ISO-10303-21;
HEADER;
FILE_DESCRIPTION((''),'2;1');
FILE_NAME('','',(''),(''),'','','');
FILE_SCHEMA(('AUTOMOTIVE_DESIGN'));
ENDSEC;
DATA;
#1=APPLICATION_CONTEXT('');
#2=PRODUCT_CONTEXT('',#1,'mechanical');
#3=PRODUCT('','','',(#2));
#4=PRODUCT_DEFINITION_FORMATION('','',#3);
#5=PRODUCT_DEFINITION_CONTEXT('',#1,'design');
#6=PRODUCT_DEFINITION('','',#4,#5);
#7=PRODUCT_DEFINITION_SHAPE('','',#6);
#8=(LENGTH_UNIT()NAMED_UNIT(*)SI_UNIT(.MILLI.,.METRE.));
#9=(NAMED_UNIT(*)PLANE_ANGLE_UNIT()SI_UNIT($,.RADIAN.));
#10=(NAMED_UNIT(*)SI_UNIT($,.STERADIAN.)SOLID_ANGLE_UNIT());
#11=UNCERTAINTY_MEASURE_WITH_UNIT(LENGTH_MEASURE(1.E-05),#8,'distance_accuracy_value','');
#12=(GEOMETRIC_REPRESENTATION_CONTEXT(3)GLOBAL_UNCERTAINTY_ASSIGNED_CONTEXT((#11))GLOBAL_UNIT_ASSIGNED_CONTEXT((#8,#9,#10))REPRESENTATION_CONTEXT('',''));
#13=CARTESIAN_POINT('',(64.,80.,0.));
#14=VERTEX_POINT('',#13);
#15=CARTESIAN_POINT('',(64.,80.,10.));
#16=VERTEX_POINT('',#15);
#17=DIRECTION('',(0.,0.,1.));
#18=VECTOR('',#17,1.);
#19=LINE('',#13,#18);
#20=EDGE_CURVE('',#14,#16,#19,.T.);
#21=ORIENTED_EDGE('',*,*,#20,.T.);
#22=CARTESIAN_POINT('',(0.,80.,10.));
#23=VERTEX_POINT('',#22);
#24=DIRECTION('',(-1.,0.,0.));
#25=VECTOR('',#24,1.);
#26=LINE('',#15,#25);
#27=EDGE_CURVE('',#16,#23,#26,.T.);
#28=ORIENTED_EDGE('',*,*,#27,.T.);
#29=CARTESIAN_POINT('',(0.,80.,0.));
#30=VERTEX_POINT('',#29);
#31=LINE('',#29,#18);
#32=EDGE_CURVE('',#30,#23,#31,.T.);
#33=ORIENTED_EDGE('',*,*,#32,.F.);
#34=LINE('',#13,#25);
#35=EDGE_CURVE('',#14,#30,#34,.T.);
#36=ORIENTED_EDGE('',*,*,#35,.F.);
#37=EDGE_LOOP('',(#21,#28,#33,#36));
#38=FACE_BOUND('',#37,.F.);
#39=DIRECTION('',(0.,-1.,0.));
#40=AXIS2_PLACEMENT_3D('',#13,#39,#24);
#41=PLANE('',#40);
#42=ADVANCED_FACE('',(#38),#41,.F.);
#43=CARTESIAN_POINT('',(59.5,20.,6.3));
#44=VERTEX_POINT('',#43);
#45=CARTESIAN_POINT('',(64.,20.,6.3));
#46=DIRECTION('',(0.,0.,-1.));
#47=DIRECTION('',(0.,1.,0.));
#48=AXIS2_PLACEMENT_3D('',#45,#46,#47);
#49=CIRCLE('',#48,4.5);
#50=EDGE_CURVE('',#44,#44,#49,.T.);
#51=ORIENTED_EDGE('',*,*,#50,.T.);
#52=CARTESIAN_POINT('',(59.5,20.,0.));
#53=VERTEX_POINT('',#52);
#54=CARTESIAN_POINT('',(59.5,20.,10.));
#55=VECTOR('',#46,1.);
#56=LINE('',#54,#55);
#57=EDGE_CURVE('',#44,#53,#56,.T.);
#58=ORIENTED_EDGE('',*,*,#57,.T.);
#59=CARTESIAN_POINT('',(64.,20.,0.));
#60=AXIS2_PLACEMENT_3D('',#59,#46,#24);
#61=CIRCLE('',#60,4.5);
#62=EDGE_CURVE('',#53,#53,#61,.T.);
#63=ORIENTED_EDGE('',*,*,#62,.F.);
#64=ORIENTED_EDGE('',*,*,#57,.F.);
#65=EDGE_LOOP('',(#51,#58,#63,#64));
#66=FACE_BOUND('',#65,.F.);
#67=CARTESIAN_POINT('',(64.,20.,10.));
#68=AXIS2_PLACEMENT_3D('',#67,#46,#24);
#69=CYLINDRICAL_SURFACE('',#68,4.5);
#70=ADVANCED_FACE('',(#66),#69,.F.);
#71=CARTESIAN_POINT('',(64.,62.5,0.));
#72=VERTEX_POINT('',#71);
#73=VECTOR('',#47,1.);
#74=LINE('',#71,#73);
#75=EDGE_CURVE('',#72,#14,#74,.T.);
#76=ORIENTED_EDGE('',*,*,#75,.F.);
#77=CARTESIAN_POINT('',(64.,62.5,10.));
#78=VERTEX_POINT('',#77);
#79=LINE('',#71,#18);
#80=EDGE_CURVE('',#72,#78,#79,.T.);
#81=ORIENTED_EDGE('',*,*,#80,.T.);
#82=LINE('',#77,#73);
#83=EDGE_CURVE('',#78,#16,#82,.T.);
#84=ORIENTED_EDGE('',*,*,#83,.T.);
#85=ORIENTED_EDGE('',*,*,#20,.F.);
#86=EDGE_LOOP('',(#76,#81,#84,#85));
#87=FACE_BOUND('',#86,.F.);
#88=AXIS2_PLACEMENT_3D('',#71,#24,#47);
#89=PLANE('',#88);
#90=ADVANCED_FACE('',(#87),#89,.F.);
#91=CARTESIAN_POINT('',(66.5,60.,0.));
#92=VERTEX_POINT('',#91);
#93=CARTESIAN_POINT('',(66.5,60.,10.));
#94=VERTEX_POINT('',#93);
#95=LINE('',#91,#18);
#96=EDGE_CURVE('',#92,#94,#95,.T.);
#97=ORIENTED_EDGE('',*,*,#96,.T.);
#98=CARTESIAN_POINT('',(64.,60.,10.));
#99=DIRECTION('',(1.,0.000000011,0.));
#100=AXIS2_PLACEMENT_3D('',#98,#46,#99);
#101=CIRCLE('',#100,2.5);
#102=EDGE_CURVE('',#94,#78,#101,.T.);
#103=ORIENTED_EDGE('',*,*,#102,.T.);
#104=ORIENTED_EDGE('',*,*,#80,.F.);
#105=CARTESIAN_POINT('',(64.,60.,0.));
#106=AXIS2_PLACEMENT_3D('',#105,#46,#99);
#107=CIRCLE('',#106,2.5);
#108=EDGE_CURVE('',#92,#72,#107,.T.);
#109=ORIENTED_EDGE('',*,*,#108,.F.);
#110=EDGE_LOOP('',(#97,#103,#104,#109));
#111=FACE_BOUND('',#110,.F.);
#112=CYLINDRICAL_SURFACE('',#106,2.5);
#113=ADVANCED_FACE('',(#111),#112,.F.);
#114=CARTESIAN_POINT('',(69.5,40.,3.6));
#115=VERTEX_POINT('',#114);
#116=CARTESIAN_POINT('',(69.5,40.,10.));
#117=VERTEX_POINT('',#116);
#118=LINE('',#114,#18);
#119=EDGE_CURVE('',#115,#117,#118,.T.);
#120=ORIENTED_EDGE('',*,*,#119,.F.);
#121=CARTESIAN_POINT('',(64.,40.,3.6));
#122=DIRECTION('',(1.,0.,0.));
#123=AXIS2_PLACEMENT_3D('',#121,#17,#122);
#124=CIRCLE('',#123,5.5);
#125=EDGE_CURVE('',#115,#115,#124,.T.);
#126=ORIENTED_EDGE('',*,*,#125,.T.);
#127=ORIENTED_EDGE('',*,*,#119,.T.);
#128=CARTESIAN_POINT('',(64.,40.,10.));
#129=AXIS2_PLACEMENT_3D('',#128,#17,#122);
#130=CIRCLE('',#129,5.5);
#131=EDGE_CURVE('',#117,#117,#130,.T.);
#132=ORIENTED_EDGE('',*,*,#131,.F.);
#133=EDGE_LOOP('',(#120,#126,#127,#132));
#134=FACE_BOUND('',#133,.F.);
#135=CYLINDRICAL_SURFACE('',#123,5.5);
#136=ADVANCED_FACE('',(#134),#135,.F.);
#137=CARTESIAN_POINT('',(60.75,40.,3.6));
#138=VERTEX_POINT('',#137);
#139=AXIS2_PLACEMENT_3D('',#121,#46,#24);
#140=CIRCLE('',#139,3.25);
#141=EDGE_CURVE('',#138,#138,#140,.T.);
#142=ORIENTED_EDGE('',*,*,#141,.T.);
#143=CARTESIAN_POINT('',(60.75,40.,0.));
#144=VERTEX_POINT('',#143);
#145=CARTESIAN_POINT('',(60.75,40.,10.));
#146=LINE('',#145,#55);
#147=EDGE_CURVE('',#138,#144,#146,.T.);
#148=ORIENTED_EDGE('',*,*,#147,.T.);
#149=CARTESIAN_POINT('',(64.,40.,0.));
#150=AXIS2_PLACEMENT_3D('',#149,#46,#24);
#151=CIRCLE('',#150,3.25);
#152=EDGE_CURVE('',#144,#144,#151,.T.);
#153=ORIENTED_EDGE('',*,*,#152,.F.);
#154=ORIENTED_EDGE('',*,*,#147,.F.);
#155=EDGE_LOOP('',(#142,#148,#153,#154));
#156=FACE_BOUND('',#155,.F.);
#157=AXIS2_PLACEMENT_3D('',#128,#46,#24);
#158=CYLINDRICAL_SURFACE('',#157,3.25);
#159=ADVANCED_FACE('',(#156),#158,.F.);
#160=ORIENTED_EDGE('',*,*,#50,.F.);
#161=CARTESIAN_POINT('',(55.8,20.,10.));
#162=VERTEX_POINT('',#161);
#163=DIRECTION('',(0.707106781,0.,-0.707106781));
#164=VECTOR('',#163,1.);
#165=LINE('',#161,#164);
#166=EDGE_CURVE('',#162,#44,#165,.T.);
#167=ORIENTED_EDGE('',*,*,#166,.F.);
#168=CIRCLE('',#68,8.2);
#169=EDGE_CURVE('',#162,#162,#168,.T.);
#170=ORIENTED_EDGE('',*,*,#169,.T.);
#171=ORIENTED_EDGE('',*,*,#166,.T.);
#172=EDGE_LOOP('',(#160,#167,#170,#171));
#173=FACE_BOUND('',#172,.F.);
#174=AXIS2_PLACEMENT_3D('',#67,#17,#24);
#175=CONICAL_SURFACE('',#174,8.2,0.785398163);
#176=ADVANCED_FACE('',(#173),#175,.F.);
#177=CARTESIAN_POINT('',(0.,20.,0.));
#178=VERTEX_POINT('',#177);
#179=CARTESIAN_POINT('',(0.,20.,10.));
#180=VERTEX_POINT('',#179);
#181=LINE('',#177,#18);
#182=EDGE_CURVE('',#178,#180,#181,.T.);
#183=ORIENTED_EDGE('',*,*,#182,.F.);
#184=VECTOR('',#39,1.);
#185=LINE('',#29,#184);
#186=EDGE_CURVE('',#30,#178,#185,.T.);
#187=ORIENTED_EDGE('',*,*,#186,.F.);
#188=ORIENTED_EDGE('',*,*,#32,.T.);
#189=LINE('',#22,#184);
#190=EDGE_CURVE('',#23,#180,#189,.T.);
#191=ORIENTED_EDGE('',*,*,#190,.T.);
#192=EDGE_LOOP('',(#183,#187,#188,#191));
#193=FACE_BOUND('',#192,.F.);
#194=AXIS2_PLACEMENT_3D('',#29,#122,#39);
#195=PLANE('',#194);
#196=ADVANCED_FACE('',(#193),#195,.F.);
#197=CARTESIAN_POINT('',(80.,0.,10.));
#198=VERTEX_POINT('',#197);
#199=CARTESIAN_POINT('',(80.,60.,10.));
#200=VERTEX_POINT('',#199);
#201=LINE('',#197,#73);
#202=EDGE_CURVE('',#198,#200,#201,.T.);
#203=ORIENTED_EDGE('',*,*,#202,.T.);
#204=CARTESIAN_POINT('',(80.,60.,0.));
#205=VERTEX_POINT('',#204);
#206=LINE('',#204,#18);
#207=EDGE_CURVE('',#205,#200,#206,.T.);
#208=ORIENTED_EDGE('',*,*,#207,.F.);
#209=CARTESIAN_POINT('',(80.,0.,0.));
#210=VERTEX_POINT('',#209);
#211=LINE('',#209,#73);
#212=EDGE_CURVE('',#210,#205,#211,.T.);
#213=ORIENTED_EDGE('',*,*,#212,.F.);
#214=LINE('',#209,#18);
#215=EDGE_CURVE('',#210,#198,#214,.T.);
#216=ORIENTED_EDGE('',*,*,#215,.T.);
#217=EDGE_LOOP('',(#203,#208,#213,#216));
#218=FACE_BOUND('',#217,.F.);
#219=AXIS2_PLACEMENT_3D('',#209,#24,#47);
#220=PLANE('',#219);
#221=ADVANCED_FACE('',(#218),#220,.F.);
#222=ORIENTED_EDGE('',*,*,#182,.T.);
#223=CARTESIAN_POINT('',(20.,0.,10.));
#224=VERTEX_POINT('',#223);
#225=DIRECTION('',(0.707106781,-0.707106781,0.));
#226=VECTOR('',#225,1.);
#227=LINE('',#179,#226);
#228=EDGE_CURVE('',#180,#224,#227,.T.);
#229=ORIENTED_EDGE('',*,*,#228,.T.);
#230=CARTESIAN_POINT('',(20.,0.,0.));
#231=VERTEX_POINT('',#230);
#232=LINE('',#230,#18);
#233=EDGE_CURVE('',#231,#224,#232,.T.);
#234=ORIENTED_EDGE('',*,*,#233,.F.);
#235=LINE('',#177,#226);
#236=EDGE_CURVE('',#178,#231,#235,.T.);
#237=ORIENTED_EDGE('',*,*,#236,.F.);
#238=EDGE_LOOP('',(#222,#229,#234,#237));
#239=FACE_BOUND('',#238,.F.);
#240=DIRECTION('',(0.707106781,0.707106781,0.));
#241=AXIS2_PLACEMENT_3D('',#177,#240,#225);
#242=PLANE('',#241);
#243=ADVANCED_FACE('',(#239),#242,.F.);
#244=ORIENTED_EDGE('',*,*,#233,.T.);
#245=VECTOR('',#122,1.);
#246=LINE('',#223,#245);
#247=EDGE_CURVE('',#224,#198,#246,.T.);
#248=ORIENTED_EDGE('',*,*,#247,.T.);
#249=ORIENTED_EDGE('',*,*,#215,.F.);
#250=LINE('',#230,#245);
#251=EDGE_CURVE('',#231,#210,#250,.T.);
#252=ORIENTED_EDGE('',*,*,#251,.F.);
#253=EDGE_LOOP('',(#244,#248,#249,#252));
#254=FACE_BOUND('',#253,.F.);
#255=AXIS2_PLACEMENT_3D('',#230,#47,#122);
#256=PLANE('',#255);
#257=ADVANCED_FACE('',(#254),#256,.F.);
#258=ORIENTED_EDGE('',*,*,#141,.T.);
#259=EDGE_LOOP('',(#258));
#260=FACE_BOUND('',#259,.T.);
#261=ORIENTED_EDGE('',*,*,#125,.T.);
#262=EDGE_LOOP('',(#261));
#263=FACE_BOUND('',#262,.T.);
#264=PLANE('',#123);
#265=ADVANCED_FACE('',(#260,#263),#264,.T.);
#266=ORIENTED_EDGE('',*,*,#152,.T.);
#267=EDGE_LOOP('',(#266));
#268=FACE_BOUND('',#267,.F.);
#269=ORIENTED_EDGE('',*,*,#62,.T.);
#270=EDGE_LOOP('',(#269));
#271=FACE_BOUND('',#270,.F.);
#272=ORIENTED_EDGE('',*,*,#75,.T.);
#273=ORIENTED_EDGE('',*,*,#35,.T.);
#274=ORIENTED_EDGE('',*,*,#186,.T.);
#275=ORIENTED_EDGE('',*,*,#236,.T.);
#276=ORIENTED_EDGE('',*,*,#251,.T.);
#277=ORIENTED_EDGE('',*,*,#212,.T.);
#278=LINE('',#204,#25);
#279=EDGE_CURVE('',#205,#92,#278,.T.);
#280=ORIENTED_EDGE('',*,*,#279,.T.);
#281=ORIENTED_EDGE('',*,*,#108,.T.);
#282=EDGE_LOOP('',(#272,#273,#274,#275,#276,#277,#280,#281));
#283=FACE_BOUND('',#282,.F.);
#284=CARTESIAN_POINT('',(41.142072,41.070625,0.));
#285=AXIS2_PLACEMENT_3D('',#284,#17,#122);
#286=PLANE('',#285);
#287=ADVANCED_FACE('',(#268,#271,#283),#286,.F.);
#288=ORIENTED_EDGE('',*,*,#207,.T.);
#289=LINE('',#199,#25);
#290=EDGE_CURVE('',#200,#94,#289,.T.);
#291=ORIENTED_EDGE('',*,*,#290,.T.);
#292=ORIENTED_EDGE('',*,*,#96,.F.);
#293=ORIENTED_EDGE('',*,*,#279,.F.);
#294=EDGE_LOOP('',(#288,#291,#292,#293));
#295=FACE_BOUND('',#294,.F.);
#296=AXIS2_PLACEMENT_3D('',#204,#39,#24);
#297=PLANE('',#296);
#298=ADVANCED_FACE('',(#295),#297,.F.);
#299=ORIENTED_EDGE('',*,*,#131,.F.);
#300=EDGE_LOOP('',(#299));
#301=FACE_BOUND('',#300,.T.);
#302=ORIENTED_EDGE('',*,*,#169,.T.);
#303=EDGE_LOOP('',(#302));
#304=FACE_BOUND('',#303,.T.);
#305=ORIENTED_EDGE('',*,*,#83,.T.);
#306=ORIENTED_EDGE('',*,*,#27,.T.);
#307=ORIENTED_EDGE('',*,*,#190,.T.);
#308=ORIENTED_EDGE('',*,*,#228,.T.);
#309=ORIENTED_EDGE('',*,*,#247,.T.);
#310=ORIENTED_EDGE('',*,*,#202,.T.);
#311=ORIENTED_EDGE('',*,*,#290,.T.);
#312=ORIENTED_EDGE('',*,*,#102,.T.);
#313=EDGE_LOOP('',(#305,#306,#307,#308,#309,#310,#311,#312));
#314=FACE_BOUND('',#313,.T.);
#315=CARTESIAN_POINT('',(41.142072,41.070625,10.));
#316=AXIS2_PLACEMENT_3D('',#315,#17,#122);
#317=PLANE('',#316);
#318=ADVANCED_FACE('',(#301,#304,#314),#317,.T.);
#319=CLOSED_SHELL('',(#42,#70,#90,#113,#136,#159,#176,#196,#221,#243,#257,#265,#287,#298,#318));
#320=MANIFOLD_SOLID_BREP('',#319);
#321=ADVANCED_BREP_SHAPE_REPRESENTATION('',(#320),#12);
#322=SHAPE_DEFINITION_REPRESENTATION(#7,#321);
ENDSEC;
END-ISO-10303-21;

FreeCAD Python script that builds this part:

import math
import FreeCAD as App
import Part
import Sketcher
from FreeCAD import Vector
Q = App.Units.Quantity

doc = App.newDocument("Part")
body = doc.addObject("PartDesign::Body", "Body")

sketch1 = body.newObject("Sketcher::SketchObject", "Sketch")
sketch1.AttachmentSupport = (doc.getObject("XY_Plane"), [""])
sketch1.MapMode = "FlatFace"
sketch1.addGeometry([
    Part.LineSegment(Vector(0, 20, 0), Vector(20, 0, 0)),
    Part.LineSegment(Vector(20, 0, 0), Vector(80, 0, 0)),
    Part.LineSegment(Vector(80, 0, 0), Vector(80, 60, 0)),
    Part.LineSegment(Vector(80, 60, 0), Vector(66.5, 60, 0)),
    Part.ArcOfCircle(Part.Circle(Vector(64, 60, 0), Vector(0, 0, 1), 2.5), math.radians(90), math.radians(360)),
    Part.LineSegment(Vector(64, 62.5, 0), Vector(64, 80, 0)),
    Part.LineSegment(Vector(64, 80, 0), Vector(0, 80, 0)),
    Part.LineSegment(Vector(0, 80, 0), Vector(0, 20, 0)),
], False)
sketch1.addConstraint([
    Sketcher.Constraint("Coincident", 0, 2, 1, 1),
    Sketcher.Constraint("Coincident", 1, 2, 2, 1),
    Sketcher.Constraint("Coincident", 2, 2, 3, 1),
    Sketcher.Constraint("Coincident", 3, 2, 4, 2),
    Sketcher.Constraint("Coincident", 4, 1, 5, 1),
    Sketcher.Constraint("Coincident", 5, 2, 6, 1),
    Sketcher.Constraint("Coincident", 6, 2, 7, 1),
    Sketcher.Constraint("Coincident", 7, 2, 0, 1),
    Sketcher.Constraint("Horizontal", 1),
    Sketcher.Constraint("Vertical", 2),
    Sketcher.Constraint("Horizontal", 3),
    Sketcher.Constraint("Vertical", 5),
    Sketcher.Constraint("Horizontal", 6),
    Sketcher.Constraint("Vertical", 7),
    Sketcher.Constraint("PointOnObject", 0, 2, -1),
    Sketcher.Constraint("PointOnObject", 6, 2, -2),
    Sketcher.Constraint("Horizontal", 4, 3, 2, 2),
    Sketcher.Constraint("Equal", 1, 2),
    Sketcher.Constraint("Equal", 2, 7),
    Sketcher.Constraint("Radius", 4, 2.5),
    Sketcher.Constraint("DistanceX", 1, 1, 1, 2, 60.0),
    Sketcher.Constraint("DistanceX", 6, 2, 6, 1, 64.0),
    Sketcher.Constraint("Angle", 0, Q("-45 deg")),
    Sketcher.Constraint("DistanceX", 3, 2, 3, 1, 13.5),
    Sketcher.Constraint("DistanceY", 5, 1, 5, 2, 17.5),
])
pad1 = body.newObject("PartDesign::Pad", "Pad")
pad1.Profile = sketch1
pad1.Length = 10

sketch2 = body.newObject("Sketcher::SketchObject", "Sketch001")
sketch2.AttachmentSupport = (doc.getObject("XY_Plane"), [""])
sketch2.MapMode = "FlatFace"
sketch2.AttachmentOffset = App.Placement(Vector(0, 0, 10), App.Rotation())
sketch2.addGeometry(Part.Circle(Vector(64, 20, 0), Vector(0, 0, 1), 4.5), False)
sketch2.addConstraint([
    Sketcher.Constraint("Diameter", 0, 9.0),
    Sketcher.Constraint("DistanceX", -1, 1, 0, 3, 64.0),
    Sketcher.Constraint("DistanceY", -1, 1, 0, 3, 20.0),
])
doc.recompute()
hole = body.newObject("PartDesign::Hole", "Hole")
hole.Profile = sketch2
hole.ThreadType = "None"
hole.Diameter = 9
hole.DepthType = "ThroughAll"
hole.HoleCutType = "Countersink"
hole.HoleCutDiameter = 16.4
hole.HoleCutCountersinkAngle = 90

sketch3 = body.newObject("Sketcher::SketchObject", "Sketch002")
sketch3.AttachmentSupport = (doc.getObject("XY_Plane"), [""])
sketch3.MapMode = "FlatFace"
sketch3.AttachmentOffset = App.Placement(Vector(0, 0, 10), App.Rotation())
sketch3.addGeometry(Part.Circle(Vector(64, 40, 0), Vector(0, 0, 1), 3.2), False)
sketch3.addConstraint([
    Sketcher.Constraint("Diameter", 0, 6.5),
    Sketcher.Constraint("DistanceX", -1, 1, 0, 3, 64.0),
    Sketcher.Constraint("DistanceY", -1, 1, 0, 3, 40.0),
])
doc.recompute()
hole2 = body.newObject("PartDesign::Hole", "Hole001")
hole2.Profile = sketch3
hole2.ThreadType = "None"
hole2.Diameter = 6.5
hole2.DepthType = "ThroughAll"
hole2.HoleCutType = "Counterbore"
hole2.HoleCutDiameter = 11
hole2.HoleCutDepth = 6.4

doc.recompute()
